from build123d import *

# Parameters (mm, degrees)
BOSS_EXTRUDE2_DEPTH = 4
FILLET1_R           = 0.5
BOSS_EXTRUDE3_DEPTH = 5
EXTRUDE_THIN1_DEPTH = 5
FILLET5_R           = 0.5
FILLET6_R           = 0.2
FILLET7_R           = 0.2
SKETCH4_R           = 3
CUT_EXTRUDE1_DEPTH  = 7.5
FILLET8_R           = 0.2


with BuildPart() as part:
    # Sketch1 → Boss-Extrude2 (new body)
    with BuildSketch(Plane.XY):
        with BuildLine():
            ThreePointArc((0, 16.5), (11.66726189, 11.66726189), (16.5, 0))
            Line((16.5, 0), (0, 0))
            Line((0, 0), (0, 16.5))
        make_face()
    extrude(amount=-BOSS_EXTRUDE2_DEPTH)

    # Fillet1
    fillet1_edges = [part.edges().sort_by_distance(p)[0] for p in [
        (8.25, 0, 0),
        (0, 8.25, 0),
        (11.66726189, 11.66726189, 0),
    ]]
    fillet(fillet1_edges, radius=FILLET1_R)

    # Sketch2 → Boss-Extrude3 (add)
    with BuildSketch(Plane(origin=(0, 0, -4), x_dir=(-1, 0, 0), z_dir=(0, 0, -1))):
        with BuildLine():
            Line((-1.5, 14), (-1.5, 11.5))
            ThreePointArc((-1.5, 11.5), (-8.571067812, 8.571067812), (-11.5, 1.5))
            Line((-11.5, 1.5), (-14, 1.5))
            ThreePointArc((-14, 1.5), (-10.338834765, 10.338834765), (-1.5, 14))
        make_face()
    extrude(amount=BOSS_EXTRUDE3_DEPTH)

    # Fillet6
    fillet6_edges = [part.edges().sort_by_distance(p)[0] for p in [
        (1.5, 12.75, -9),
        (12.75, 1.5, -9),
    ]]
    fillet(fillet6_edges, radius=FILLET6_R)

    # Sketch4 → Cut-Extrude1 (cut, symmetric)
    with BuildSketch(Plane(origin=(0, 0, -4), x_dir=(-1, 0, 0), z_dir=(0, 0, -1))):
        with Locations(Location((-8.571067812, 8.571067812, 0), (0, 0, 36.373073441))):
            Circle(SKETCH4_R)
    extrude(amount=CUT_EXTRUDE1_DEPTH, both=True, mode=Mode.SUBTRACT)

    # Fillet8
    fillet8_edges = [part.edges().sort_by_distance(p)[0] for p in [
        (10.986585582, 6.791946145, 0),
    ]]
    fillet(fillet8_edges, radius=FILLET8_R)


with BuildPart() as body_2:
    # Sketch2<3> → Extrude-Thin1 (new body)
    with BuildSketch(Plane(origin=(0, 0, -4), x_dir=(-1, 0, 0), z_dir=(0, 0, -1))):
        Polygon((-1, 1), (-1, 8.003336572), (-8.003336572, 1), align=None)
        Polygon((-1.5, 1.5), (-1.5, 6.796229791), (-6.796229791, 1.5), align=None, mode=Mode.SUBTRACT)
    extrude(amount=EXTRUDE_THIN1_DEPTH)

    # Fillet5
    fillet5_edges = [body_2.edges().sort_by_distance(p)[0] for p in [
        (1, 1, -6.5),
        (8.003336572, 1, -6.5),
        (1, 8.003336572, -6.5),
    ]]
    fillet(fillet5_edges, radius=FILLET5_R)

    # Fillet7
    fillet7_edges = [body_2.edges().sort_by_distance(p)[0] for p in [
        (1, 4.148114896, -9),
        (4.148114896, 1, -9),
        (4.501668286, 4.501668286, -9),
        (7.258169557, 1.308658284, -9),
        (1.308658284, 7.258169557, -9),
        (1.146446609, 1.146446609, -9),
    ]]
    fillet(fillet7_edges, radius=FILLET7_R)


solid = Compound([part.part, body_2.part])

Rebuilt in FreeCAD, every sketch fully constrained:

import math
import FreeCAD as App
import Part
import Sketcher

V = App.Vector


def edges_at(feature, points):
    """Names of the edges that pass closest to the given points."""
    edges = feature.Shape.Edges
    near = lambda p: min(range(len(edges)), key=lambda i: edges[i].distToShape(Part.Vertex(*p))[0])
    return sorted({f"Edge{near(p) + 1}" for p in points})

doc = App.newDocument("Part")
body = doc.addObject("PartDesign::Body", "Body")

# Sketch on XY plane
sketch1 = body.newObject("Sketcher::SketchObject", "Sketch")
sketch1.AttachmentSupport = (doc.getObject("XY_Plane"), [""])
sketch1.MapMode = "FlatFace"
sketch1.addGeometry(Part.ArcOfCircle(Part.Circle(V(0, 0, 0), V(0, 0, 1), 16), math.radians(0), math.radians(90)), False)
sketch1.addGeometry(Part.LineSegment(V(0, 16, 0), V(0, 0, 0)), False)
sketch1.addGeometry(Part.LineSegment(V(0, 0, 0), V(16, 0, 0)), False)
sketch1.addConstraint(Sketcher.Constraint("Coincident", 0, 2, 1, 1))
sketch1.addConstraint(Sketcher.Constraint("Coincident", 1, 2, 2, 1))
sketch1.addConstraint(Sketcher.Constraint("Coincident", 2, 2, 0, 1))
sketch1.addConstraint(Sketcher.Constraint("Vertical", 1))
sketch1.addConstraint(Sketcher.Constraint("Horizontal", 2))
sketch1.addConstraint(Sketcher.Constraint("Coincident", 0, 3, -1, 1))
sketch1.addConstraint(Sketcher.Constraint("Coincident", 1, 2, -1, 1))
sketch1.addConstraint(Sketcher.Constraint("Radius", 0, 16.5))
pad1 = body.newObject("PartDesign::Pad", "Pad")
pad1.Profile = sketch1
pad1.Length = 4
pad1.Reversed = True
doc.recompute()

fillet = body.newObject("PartDesign::Fillet", "Fillet")
fillet.Base = (pad1, edges_at(pad1, [(8.25, 0, 0), (0, 8.25, 0), (11.667, 11.667, 0)]))
fillet.Radius = 0.5

# Sketch on XY plane
sketch2 = body.newObject("Sketcher::SketchObject", "Sketch001")
sketch2.AttachmentSupport = (doc.getObject("XY_Plane"), [""])
sketch2.MapMode = "FlatFace"
sketch2.AttachmentOffset = App.Placement(V(0, 0, -4), App.Rotation())
sketch2.addGeometry(Part.LineSegment(V(1.5, 11.5, 0), V(1.5, 14, 0)), False)
sketch2.addGeometry(Part.ArcOfCircle(Part.Circle(V(1.5, 1.5, 0), V(0, 0, 1), 12.5), math.radians(0), math.radians(90)), False)
sketch2.addGeometry(Part.LineSegment(V(14, 1.5, 0), V(11.5, 1.5, 0)), False)
sketch2.addGeometry(Part.ArcOfCircle(Part.Circle(V(1.5, 1.5, 0), V(0, 0, 1), 10), math.radians(0), math.radians(90)), False)
sketch2.addConstraint(Sketcher.Constraint("Coincident", 0, 2, 1, 2))
sketch2.addConstraint(Sketcher.Constraint("Coincident", 1, 1, 2, 1))
sketch2.addConstraint(Sketcher.Constraint("Coincident", 2, 2, 3, 1))
sketch2.addConstraint(Sketcher.Constraint("Coincident", 3, 2, 0, 1))
sketch2.addConstraint(Sketcher.Constraint("Vertical", 0))
sketch2.addConstraint(Sketcher.Constraint("Horizontal", 2))
sketch2.addConstraint(Sketcher.Constraint("Coincident", 3, 3, 1, 3))
sketch2.addConstraint(Sketcher.Constraint("Horizontal", 3, 3, 1, 1))
sketch2.addConstraint(Sketcher.Constraint("Vertical", 3, 3, 0, 2))
sketch2.addConstraint(Sketcher.Constraint("Radius", 3, 10.0))
sketch2.addConstraint(Sketcher.Constraint("Radius", 1, 12.5))
sketch2.addConstraint(Sketcher.Constraint("DistanceY", -1, 1, 0, 2, 14.0))
sketch2.addConstraint(Sketcher.Constraint("DistanceX", -1, 1, 1, 1, 14.0))
pad2 = body.newObject("PartDesign::Pad", "Pad001")
pad2.Profile = sketch2
pad2.Length = 5
pad2.Reversed = True
doc.recompute()

fillet2 = body.newObject("PartDesign::Fillet", "Fillet001")
fillet2.Base = (pad2, edges_at(pad2, [(1.5, 12.75, -9), (12.75, 1.5, -9)]))
fillet2.Radius = 0.2

# Sketch on XY plane
sketch3 = body.newObject("Sketcher::SketchObject", "Sketch002")
sketch3.AttachmentSupport = (doc.getObject("XY_Plane"), [""])
sketch3.MapMode = "FlatFace"
sketch3.AttachmentOffset = App.Placement(V(0, 0, -4), App.Rotation())
sketch3.addGeometry(Part.Circle(V(8.6, 8.6, 0), V(0, 0, 1), 3), False)
sketch3.addConstraint(Sketcher.Constraint("Diameter", 0, 6.0))
sketch3.addConstraint(Sketcher.Constraint("DistanceX", -1, 1, 0, 3, 8.571068))
sketch3.addConstraint(Sketcher.Constraint("DistanceY", -1, 1, 0, 3, 8.571068))
pocket1 = body.newObject("PartDesign::Pocket", "Pocket")
pocket1.Profile = sketch3
pocket1.Length = 15
pocket1.Midplane = True
doc.recompute()

fillet3 = body.newObject("PartDesign::Fillet", "Fillet002")
fillet3.Base = (pocket1, edges_at(pocket1, [(10.987, 6.792, 0)]))
fillet3.Radius = 0.2
body2 = doc.addObject("PartDesign::Body", "Body001")

# Sketch on XY plane
sketch4 = body2.newObject("Sketcher::SketchObject", "Sketch003")
sketch4.AttachmentSupport = (doc.getObject("XY_Plane001"), [""])
sketch4.MapMode = "FlatFace"
sketch4.AttachmentOffset = App.Placement(V(0, 0, -4), App.Rotation())
sketch4.addGeometry(Part.LineSegment(V(1, 1, 0), V(1, 8, 0)), False)
sketch4.addGeometry(Part.LineSegment(V(1, 8, 0), V(8, 1, 0)), False)
sketch4.addGeometry(Part.LineSegment(V(8, 1, 0), V(1, 1, 0)), False)
sketch4.addGeometry(Part.LineSegment(V(2, 7, 0), V(2, 2, 0)), False)
sketch4.addGeometry(Part.LineSegment(V(2, 2, 0), V(7, 2, 0)), False)
sketch4.addGeometry(Part.LineSegment(V(7, 2, 0), V(2, 7, 0)), False)
sketch4.addConstraint(Sketcher.Constraint("Coincident", 0, 2, 1, 1))
sketch4.addConstraint(Sketcher.Constraint("Coincident", 1, 2, 2, 1))
sketch4.addConstraint(Sketcher.Constraint("Coincident", 2, 2, 0, 1))
sketch4.addConstraint(Sketcher.Constraint("Coincident", 3, 2, 4, 1))
sketch4.addConstraint(Sketcher.Constraint("Coincident", 4, 2, 5, 1))
sketch4.addConstraint(Sketcher.Constraint("Coincident", 5, 2, 3, 1))
sketch4.addConstraint(Sketcher.Constraint("Vertical", 0))
sketch4.addConstraint(Sketcher.Constraint("Horizontal", 2))
sketch4.addConstraint(Sketcher.Constraint("Vertical", 3))
sketch4.addConstraint(Sketcher.Constraint("Horizontal", 4))
sketch4.addConstraint(Sketcher.Constraint("Parallel", 1, 5))
sketch4.addConstraint(Sketcher.Constraint("Equal", 2, 0))
sketch4.addConstraint(Sketcher.Constraint("DistanceX", -1, 1, 0, 2, 1.0))
sketch4.addConstraint(Sketcher.Constraint("DistanceY", -1, 1, 1, 2, 1.0))
sketch4.addConstraint(Sketcher.Constraint("DistanceX", -1, 1, 3, 2, 1.5))
sketch4.addConstraint(Sketcher.Constraint("DistanceY", -1, 1, 3, 2, 1.5))
sketch4.addConstraint(Sketcher.Constraint("Distance", 5, 7.49))
sketch4.addConstraint(Sketcher.Constraint("DistanceX", 2, 2, 2, 1, 7.003337))
pad3 = body2.newObject("PartDesign::Pad", "Pad002")
pad3.Profile = sketch4
pad3.Length = 5
pad3.Reversed = True
doc.recompute()

fillet4 = body2.newObject("PartDesign::Fillet", "Fillet003")
fillet4.Base = (pad3, edges_at(pad3, [(1, 1, -6.5), (8.003, 1, -6.5), (1, 8.003, -6.5)]))
fillet4.Radius = 0.5
doc.recompute()

fillet5 = body2.newObject("PartDesign::Fillet", "Fillet004")
fillet5.Base = (fillet4, edges_at(fillet4, [
    (1, 4.148, -9),
    (4.148, 1, -9),
    (4.502, 4.502, -9),
    (7.258, 1.309, -9),
    (1.309, 7.258, -9),
    (1.146, 1.146, -9),
]))
fillet5.Radius = 0.2

doc.recompute()
